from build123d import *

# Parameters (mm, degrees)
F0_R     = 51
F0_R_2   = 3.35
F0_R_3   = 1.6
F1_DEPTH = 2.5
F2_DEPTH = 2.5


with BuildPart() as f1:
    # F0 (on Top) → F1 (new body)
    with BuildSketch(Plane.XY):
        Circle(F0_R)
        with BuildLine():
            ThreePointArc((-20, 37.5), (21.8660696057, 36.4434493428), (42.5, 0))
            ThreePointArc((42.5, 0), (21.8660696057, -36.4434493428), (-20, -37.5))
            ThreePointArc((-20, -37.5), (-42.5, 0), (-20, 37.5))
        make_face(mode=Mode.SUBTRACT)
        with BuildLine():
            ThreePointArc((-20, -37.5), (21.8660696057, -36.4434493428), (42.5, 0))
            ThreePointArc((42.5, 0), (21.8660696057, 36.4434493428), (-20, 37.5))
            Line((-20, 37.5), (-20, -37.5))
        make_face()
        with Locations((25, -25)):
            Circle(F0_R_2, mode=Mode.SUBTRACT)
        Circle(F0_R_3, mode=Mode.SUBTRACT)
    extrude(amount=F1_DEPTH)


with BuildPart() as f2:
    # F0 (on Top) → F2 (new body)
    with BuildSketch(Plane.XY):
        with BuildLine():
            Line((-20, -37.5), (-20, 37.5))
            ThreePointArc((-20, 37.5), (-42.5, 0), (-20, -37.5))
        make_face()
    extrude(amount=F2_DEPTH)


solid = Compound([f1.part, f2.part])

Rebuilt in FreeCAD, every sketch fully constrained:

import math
import FreeCAD as App
import Part
import Sketcher

V = App.Vector
Q = App.Units.Quantity

doc = App.newDocument("Part")
body = doc.addObject("PartDesign::Body", "Body")

# Sketch on XY plane
sketch1 = body.newObject("Sketcher::SketchObject", "Sketch")
sketch1.AttachmentSupport = (doc.getObject("XY_Plane"), [""])
sketch1.MapMode = "FlatFace"
sketch1.addGeometry([
    Part.Circle(V(0, 0, 0), V(0, 0, 1), 51),  # 0
    Part.Circle(V(25, -25, 0), V(0, 0, 1), 3.4),  # 1
    Part.ArcOfCircle(Part.Circle(V(0, 0, 0), V(0, 0, 1), 42.5), math.radians(118), math.radians(242)),  # 2
    Part.LineSegment(V(-20, 37.5, 0), V(-20, -37.5, 0)),  # 3
    Part.Circle(V(0, 0, 0), V(0, 0, 1), 1.6),  # 4
], False)
sketch1.addConstraint([
    Sketcher.Constraint("Coincident", 2, 1, 3, 1),
    Sketcher.Constraint("Coincident", 3, 2, 2, 2),
    Sketcher.Constraint("Vertical", 3),
    Sketcher.Constraint("Coincident", 0, 3, -1, 1),
    Sketcher.Constraint("Coincident", 2, 3, -1, 1),
    Sketcher.Constraint("Coincident", 4, 3, -1, 1),
    Sketcher.Constraint("Diameter", 0, Q("102 mm")),
    Sketcher.Constraint("Diameter", 1, Q("6.7 mm")),
    Sketcher.Constraint("Diameter", 4, Q("3.2 mm")),
    Sketcher.Constraint("Radius", 2, Q("42.5 mm")),
    Sketcher.Constraint("DistanceY", 3, 2, 3, 1, Q("75 mm")),
    Sketcher.Constraint("DistanceX", -1, 1, 1, 3, Q("25 mm")),
    Sketcher.Constraint("DistanceY", 1, 3, -1, 1, Q("25 mm")),
])
pad1 = body.newObject("PartDesign::Pad", "Pad")
pad1.Profile = sketch1
pad1.Length = 2.5
body2 = doc.addObject("PartDesign::Body", "Body001")

# Sketch on XY plane
sketch2 = body2.newObject("Sketcher::SketchObject", "Sketch001")
sketch2.AttachmentSupport = (doc.getObject("XY_Plane001"), [""])
sketch2.MapMode = "FlatFace"
sketch2.addGeometry([
    Part.LineSegment(V(-20, -38, 0), V(-20, 38, 0)),
    Part.ArcOfCircle(Part.Circle(V(0, 0, 0), V(0, 0, 1), 42), math.radians(118), math.radians(242)),
], False)
sketch2.addConstraint([
    Sketcher.Constraint("Coincident", 0, 1, 1, 2),
    Sketcher.Constraint("Coincident", 1, 1, 0, 2),
    Sketcher.Constraint("Vertical", 0),
    Sketcher.Constraint("Coincident", 1, 3, -1, 1),
    Sketcher.Constraint("Radius", 1, Q("42.5 mm")),
    Sketcher.Constraint("DistanceY", 0, 1, 0, 2, Q("75 mm")),
])
pad2 = body2.newObject("PartDesign::Pad", "Pad001")
pad2.Profile = sketch2
pad2.Length = 2.5

doc.recompute()
